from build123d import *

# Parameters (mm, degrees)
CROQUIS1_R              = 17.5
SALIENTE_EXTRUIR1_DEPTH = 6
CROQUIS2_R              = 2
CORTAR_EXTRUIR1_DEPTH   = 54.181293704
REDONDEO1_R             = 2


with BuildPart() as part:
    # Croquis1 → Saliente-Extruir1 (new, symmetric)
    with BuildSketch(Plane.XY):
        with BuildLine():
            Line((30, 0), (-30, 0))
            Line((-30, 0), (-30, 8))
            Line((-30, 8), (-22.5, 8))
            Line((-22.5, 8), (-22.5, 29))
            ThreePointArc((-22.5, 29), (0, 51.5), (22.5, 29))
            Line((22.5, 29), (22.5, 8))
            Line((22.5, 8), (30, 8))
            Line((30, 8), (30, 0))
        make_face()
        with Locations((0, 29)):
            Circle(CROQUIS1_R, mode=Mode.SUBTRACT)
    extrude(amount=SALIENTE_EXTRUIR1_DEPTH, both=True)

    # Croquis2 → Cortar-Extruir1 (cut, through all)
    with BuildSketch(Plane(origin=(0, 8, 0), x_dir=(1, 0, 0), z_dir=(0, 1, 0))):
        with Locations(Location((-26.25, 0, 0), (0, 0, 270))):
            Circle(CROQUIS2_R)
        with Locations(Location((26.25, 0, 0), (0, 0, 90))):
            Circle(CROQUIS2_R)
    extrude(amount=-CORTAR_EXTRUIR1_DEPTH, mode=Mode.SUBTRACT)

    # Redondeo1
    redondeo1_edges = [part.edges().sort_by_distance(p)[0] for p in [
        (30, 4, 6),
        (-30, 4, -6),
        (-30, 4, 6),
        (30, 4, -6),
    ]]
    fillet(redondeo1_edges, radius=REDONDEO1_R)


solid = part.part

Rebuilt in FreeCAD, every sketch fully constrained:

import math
import FreeCAD as App
import Part
import Sketcher
from FreeCAD import Vector


def edges_at(feature, points):
    """Names of the edges that pass closest to the given points."""
    edges = feature.Shape.Edges
    near = lambda p: min(range(len(edges)), key=lambda i: edges[i].distToShape(Part.Vertex(*p))[0])
    return sorted({f"Edge{near(p) + 1}" for p in points})

doc = App.newDocument("Part")
body = doc.addObject("PartDesign::Body", "Body")

sketch1 = body.newObject("Sketcher::SketchObject", "Sketch")
sketch1.AttachmentSupport = (doc.getObject("XY_Plane"), [""])
sketch1.MapMode = "FlatFace"
sketch1.addGeometry([
    Part.LineSegment(Vector(-30, 0, 0), Vector(30, 0, 0)),
    Part.LineSegment(Vector(30, 0, 0), Vector(30, 8, 0)),
    Part.LineSegment(Vector(30, 8, 0), Vector(22.5, 8, 0)),
    Part.LineSegment(Vector(22.5, 8, 0), Vector(22.5, 29, 0)),
    Part.ArcOfCircle(Part.Circle(Vector(0, 29, 0), Vector(0, 0, 1), 22.5), math.radians(0), math.radians(180)),
    Part.LineSegment(Vector(-22.5, 29, 0), Vector(-22.5, 8, 0)),
    Part.LineSegment(Vector(-22.5, 8, 0), Vector(-30, 8, 0)),
    Part.LineSegment(Vector(-30, 8, 0), Vector(-30, 0, 0)),
    Part.Circle(Vector(0, 29, 0), Vector(0, 0, 1), 17.5),
], False)
sketch1.addConstraint([
    Sketcher.Constraint("Coincident", 0, 2, 1, 1),
    Sketcher.Constraint("Coincident", 1, 2, 2, 1),
    Sketcher.Constraint("Coincident", 2, 2, 3, 1),
    Sketcher.Constraint("Tangent", 3, 2, 4, 1),
    Sketcher.Constraint("Tangent", 4, 2, 5, 1),
    Sketcher.Constraint("Coincident", 5, 2, 6, 1),
    Sketcher.Constraint("Coincident", 6, 2, 7, 1),
    Sketcher.Constraint("Coincident", 7, 2, 0, 1),
    Sketcher.Constraint("Horizontal", 0),
    Sketcher.Constraint("Vertical", 1),
    Sketcher.Constraint("Horizontal", 2),
    Sketcher.Constraint("Vertical", 3),
    Sketcher.Constraint("Vertical", 5),
    Sketcher.Constraint("Horizontal", 6),
    Sketcher.Constraint("Vertical", 7),
    Sketcher.Constraint("Coincident", 8, 3, 4, 3),
    Sketcher.Constraint("Symmetric", 0, 2, 7, 2, -1, 1),
    Sketcher.Constraint("Symmetric", 2, 2, 5, 2, -2),
    Sketcher.Constraint("Diameter", 8, 35.0),
    Sketcher.Constraint("Radius", 4, 22.5),
    Sketcher.Constraint("DistanceX", 0, 1, 0, 2, 60.0),
    Sketcher.Constraint("DistanceY", 1, 1, 1, 2, 8.0),
    Sketcher.Constraint("DistanceY", 3, 1, 3, 2, 21.0),
])
pad1 = body.newObject("PartDesign::Pad", "Pad")
pad1.Profile = sketch1
pad1.Length = 12
pad1.Midplane = True

sketch2 = body.newObject("Sketcher::SketchObject", "Sketch001")
sketch2.AttachmentSupport = (doc.getObject("XZ_Plane"), [""])
sketch2.MapMode = "FlatFace"
sketch2.AttachmentOffset = App.Placement(Vector(0, 0, -8), App.Rotation())
sketch2.addGeometry([
    Part.Circle(Vector(-26.25, 0, 0), Vector(0, 0, 1), 2),
    Part.Circle(Vector(26.25, 0, 0), Vector(0, 0, 1), 2),
], False)
sketch2.addConstraint([
    Sketcher.Constraint("Equal", 0, 1),
    Sketcher.Constraint("Symmetric", 0, 3, 1, 3, -1, 1),
    Sketcher.Constraint("PointOnObject", 0, 3, -1),
    Sketcher.Constraint("Diameter", 0, 4.0),
    Sketcher.Constraint("DistanceX", 0, 3, 1, 3, 52.5),
])
pocket1 = body.newObject("PartDesign::Pocket", "Pocket")
pocket1.Profile = sketch2
pocket1.Type = "ThroughAll"
pocket1.Reversed = True
doc.recompute()

fillet = body.newObject("PartDesign::Fillet", "Fillet")
fillet.Base = (pocket1, edges_at(pocket1, [
    (30, 4, 6),
    (-30, 4, -6),
    (-30, 4, 6),
    (30, 4, -6),
]))
fillet.Radius = 2

doc.recompute()
